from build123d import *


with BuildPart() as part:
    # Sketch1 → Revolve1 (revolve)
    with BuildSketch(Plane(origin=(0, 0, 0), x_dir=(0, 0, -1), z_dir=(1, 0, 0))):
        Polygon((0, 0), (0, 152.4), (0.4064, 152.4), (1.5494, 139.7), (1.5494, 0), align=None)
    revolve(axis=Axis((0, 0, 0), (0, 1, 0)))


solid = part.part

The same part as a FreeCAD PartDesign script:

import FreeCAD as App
import Part
import Sketcher
from FreeCAD import Vector
Q = App.Units.Quantity

doc = App.newDocument("Part")
params = doc.addObject("Spreadsheet::Sheet", "Params")
for row, (alias, value) in enumerate([
    ("sketch1_width", "6 in"),
    ("sketch1_width2", "5.5 in"),
    ("sketch1_height", "0.061 in"),
    ("sketch1_height2", "0.016 in"),
    ("revolution_angle", "360 deg"),
], start=1):
    params.set(f"A{row}", alias)
    params.set(f"B{row}", "=" + value)
    params.setAlias(f"B{row}", alias)

body = doc.addObject("PartDesign::Body", "Body")

sketch1 = body.newObject("Sketcher::SketchObject", "Sketch")
sketch1.AttachmentSupport = (doc.getObject("YZ_Plane"), [""])
sketch1.MapMode = "FlatFace"
sketch1.addGeometry(Part.LineSegment(Vector(152.4, 0, 0), Vector(0, 0, 0)), False)
sketch1.addGeometry(Part.LineSegment(Vector(0, 0, 0), Vector(0, -1.5494, 0)), False)
sketch1.addGeometry(Part.LineSegment(Vector(0, -1.5494, 0), Vector(139.7, -1.5494, 0)), False)
sketch1.addGeometry(Part.LineSegment(Vector(139.7, -1.5494, 0), Vector(152.4, -0.4064, 0)), False)
sketch1.addGeometry(Part.LineSegment(Vector(152.4, -0.4064, 0), Vector(152.4, 0, 0)), False)
sketch1.addConstraint(Sketcher.Constraint("Coincident", 0, 2, 1, 1))
sketch1.addConstraint(Sketcher.Constraint("Coincident", 1, 2, 2, 1))
sketch1.addConstraint(Sketcher.Constraint("Coincident", 2, 2, 3, 1))
sketch1.addConstraint(Sketcher.Constraint("Coincident", 3, 2, 4, 1))
sketch1.addConstraint(Sketcher.Constraint("Coincident", 4, 2, 0, 1))
sketch1.addConstraint(Sketcher.Constraint("Horizontal", 0))
sketch1.addConstraint(Sketcher.Constraint("Vertical", 1))
sketch1.addConstraint(Sketcher.Constraint("Horizontal", 2))
sketch1.addConstraint(Sketcher.Constraint("Vertical", 4))
sketch1.addConstraint(Sketcher.Constraint("Coincident", 0, 2, -1, 1))
sketch1.addConstraint(Sketcher.Constraint("DistanceX", 0, 2, 0, 1, Q("6 in")))
sketch1.addConstraint(Sketcher.Constraint("DistanceX", 2, 1, 2, 2, Q("5.5 in")))
sketch1.addConstraint(Sketcher.Constraint("DistanceY", 1, 2, 1, 1, Q("0.061 in")))
sketch1.addConstraint(Sketcher.Constraint("DistanceY", 4, 1, 4, 2, Q("0.016 in")))
sketch1.setExpression("Constraints[10]", "Params.sketch1_width")
sketch1.setExpression("Constraints[11]", "Params.sketch1_width2")
sketch1.setExpression("Constraints[12]", "Params.sketch1_height")
sketch1.setExpression("Constraints[13]", "Params.sketch1_height2")
revolution = body.newObject("PartDesign::Revolution", "Revolution")
revolution.Profile = sketch1
revolution.ReferenceAxis = (sketch1, ["H_Axis"])
revolution.setExpression("Angle", "Params.revolution_angle")

doc.recompute()
